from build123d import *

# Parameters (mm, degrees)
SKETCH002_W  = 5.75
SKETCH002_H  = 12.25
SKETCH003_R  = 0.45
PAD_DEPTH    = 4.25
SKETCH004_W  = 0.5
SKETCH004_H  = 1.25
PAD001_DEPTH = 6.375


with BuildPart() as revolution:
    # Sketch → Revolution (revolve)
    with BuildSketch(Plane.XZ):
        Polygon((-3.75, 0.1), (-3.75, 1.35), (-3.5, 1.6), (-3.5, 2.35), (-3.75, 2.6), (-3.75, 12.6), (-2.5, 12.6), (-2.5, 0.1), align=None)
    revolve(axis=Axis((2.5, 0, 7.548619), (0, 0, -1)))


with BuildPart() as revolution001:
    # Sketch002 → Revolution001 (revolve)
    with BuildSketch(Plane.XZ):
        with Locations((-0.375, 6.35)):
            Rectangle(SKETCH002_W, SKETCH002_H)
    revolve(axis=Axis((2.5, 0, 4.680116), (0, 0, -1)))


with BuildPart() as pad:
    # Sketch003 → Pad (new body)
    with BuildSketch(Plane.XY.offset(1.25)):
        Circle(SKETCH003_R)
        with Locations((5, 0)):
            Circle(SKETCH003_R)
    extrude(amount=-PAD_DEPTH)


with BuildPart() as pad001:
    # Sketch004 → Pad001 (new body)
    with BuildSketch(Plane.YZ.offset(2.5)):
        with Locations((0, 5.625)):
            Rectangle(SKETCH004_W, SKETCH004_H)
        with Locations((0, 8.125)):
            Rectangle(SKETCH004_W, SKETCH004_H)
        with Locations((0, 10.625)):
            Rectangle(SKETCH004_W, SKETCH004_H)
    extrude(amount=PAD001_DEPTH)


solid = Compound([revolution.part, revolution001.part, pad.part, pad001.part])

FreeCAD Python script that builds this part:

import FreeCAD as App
import Part
import Sketcher
Q = App.Units.Quantity


def add_polygon(sketch, points):
    """Adds a closed chain of lines whose ends are joined by coincident constraints."""
    first, n = sketch.GeometryCount, len(points)
    for a, b in zip(points, points[1:] + points[:1]):
        sketch.addGeometry(Part.LineSegment(App.Vector(*a, 0), App.Vector(*b, 0)), False)
    for i in range(n):
        sketch.addConstraint(Sketcher.Constraint("Coincident", first + i, 2, first + (i + 1) % n, 1))

doc = App.newDocument("Part")
params = doc.addObject("Spreadsheet::Sheet", "Params")
for row, (alias, value) in enumerate([
    ("sketch1_height", "10 mm"),
    ("sketch1_height2", "12.5 mm"),
    ("revolution_angle", "360 deg"),
    ("sketch2_width", "5.75 mm"),
    ("sketch2_height", "12.25 mm"),
    ("revolution2_angle", "360 deg"),
    ("sketch3_diameter", "0.9 mm"),
    ("pad1_length", "4.25 mm"),
    ("sketch4_width", "0.5 mm"),
    ("sketch4_height", "1.25 mm"),
    ("pad2_length", "6.375 mm"),
], start=1):
    params.set(f"A{row}", alias)
    params.set(f"B{row}", "=" + value)
    params.setAlias(f"B{row}", alias)

body = doc.addObject("PartDesign::Body", "Body")

# Sketch on XZ plane
sketch1 = body.newObject("Sketcher::SketchObject", "Sketch")
sketch1.AttachmentSupport = (doc.getObject("XZ_Plane"), [""])
sketch1.MapMode = "FlatFace"
add_polygon(sketch1, [(-3.75, 1.35), (-3.75, 0.1), (-2.5, 0.1), (-2.5, 12.6), (-3.75, 12.6), (-3.75, 2.6), (-3.5, 2.35), (-3.5, 1.6)])  # lines 0-7
sketch1.addGeometry(Part.LineSegment(App.Vector(2.5, 12.6, 0), App.Vector(2.5, 0.1, 0)), True)  # axis
sketch1.addConstraint([
    Sketcher.Constraint("Vertical", 0),
    Sketcher.Constraint("Horizontal", 1),
    Sketcher.Constraint("Vertical", 2),
    Sketcher.Constraint("Horizontal", 3),
    Sketcher.Constraint("Vertical", 4),
    Sketcher.Constraint("Vertical", 6),
    Sketcher.Constraint("Vertical", 8),
    Sketcher.Constraint("Symmetric", 2, 2, 8, 1, -2),
    Sketcher.Constraint("Perpendicular", 5, 7),
    Sketcher.Constraint("Horizontal", 1, 2, 8, 2),
    Sketcher.Constraint("Vertical", 0, 2, 3, 2),
    Sketcher.Constraint("Equal", 3, 0),
    Sketcher.Constraint("Equal", 5, 7),
    Sketcher.Constraint("DistanceY", 4, 2, 4, 1, Q("10 mm")),
    Sketcher.Constraint("DistanceY", 2, 1, 2, 2, Q("12.5 mm")),
    Sketcher.Constraint("DistanceX", 5, 2, 1, 2, Q("1 mm")),
    Sketcher.Constraint("DistanceY", 6, 2, 4, 2, Q("1 mm")),
    Sketcher.Constraint("DistanceX", 2, 2, 8, 1, Q("5 mm")),
    Sketcher.Constraint("DistanceY", -1, 1, 0, 2, Q("0.1 mm")),
])
sketch1.setExpression("Constraints[21]", "Params.sketch1_height")
sketch1.setExpression("Constraints[22]", "Params.sketch1_height2")
revolution = body.newObject("PartDesign::Revolution", "Revolution")
revolution.Profile = sketch1
revolution.ReferenceAxis = (sketch1, ["Axis0"])
revolution.setExpression("Angle", "Params.revolution_angle")
body2 = doc.addObject("PartDesign::Body", "Body001")

# Sketch on XZ plane
sketch2 = body2.newObject("Sketcher::SketchObject", "Sketch001")
sketch2.AttachmentSupport = (doc.getObject("XZ_Plane001"), [""])
sketch2.MapMode = "FlatFace"
add_polygon(sketch2, [(-3.25, 12.475), (-3.25, 0.225), (2.5, 0.225), (2.5, 12.475)])  # lines 0-3
sketch2.addGeometry(Part.LineSegment(App.Vector(2.5, 12.475, 0), App.Vector(2.5, 0.225, 0)), True)  # axis
sketch2.addConstraint([
    Sketcher.Constraint("Vertical", 0),
    Sketcher.Constraint("Horizontal", 1),
    Sketcher.Constraint("Vertical", 2),
    Sketcher.Constraint("Horizontal", 3),
    Sketcher.Constraint("Vertical", 4),
    Sketcher.Constraint("Coincident", 4, 1, 2, 2),
    Sketcher.Constraint("Horizontal", 0, 2, 4, 2),
    Sketcher.Constraint("DistanceX", 1, 1, 1, 2, Q("5.75 mm")),
    Sketcher.Constraint("DistanceY", 0, 2, 0, 1, Q("12.25 mm")),
    Sketcher.Constraint("DistanceX", -1, 1, 1, 2, Q("2.5 mm")),
    Sketcher.Constraint("DistanceY", -1, 1, 0, 2, Q("0.225 mm")),
])
sketch2.setExpression("Constraints[11]", "Params.sketch2_width")
sketch2.setExpression("Constraints[12]", "Params.sketch2_height")
revolution2 = body2.newObject("PartDesign::Revolution", "Revolution001")
revolution2.Profile = sketch2
revolution2.ReferenceAxis = (sketch2, ["Axis0"])
revolution2.setExpression("Angle", "Params.revolution2_angle")
body3 = doc.addObject("PartDesign::Body", "Body002")
body3.AllowCompound = True

# Sketch on XY plane
sketch3 = body3.newObject("Sketcher::SketchObject", "Sketch002")
sketch3.AttachmentSupport = (doc.getObject("XY_Plane002"), [""])
sketch3.MapMode = "FlatFace"
sketch3.AttachmentOffset = App.Placement(App.Vector(0, 0, 1.25), App.Rotation())
sketch3.addGeometry([
    Part.Circle(App.Vector(0, 0, 0), App.Vector(0, 0, 1), 0.45),
    Part.Circle(App.Vector(5, 0, 0), App.Vector(0, 0, 1), 0.45),
], False)
sketch3.addConstraint([
    Sketcher.Constraint("Coincident", 0, 3, -1, 1),
    Sketcher.Constraint("Equal", 0, 1),
    Sketcher.Constraint("PointOnObject", 1, 3, -1),
    Sketcher.Constraint("Diameter", 0, Q("0.9 mm")),
    Sketcher.Constraint("DistanceX", -1, 1, 1, 3, Q("5 mm")),
])
sketch3.setExpression("Constraints[3]", "Params.sketch3_diameter")
pad1 = body3.newObject("PartDesign::Pad", "Pad")
pad1.Profile = sketch3
pad1.setExpression("Length", "Params.pad1_length")
pad1.Reversed = True
body4 = doc.addObject("PartDesign::Body", "Body003")
body4.AllowCompound = True

# Sketch on YZ plane
sketch4 = body4.newObject("Sketcher::SketchObject", "Sketch003")
sketch4.AttachmentSupport = (doc.getObject("YZ_Plane003"), [""])
sketch4.MapMode = "FlatFace"
sketch4.AttachmentOffset = App.Placement(App.Vector(0, 0, 2.5), App.Rotation())
add_polygon(sketch4, [(-0.25, 6.25), (-0.25, 5), (0.25, 5), (0.25, 6.25)])  # lines 0-3
add_polygon(sketch4, [(-0.25, 8.75), (-0.25, 7.5), (0.25, 7.5), (0.25, 8.75)])  # lines 4-7
add_polygon(sketch4, [(-0.25, 11.25), (-0.25, 10), (0.25, 10), (0.25, 11.25)])  # lines 8-11
sketch4.addConstraint([
    Sketcher.Constraint("Vertical", 0),
    Sketcher.Constraint("Horizontal", 1),
    Sketcher.Constraint("Vertical", 2),
    Sketcher.Constraint("Horizontal", 3),
    Sketcher.Constraint("Vertical", 4),
    Sketcher.Constraint("Horizontal", 5),
    Sketcher.Constraint("Vertical", 6),
    Sketcher.Constraint("Horizontal", 7),
    Sketcher.Constraint("Vertical", 8),
    Sketcher.Constraint("Horizontal", 9),
    Sketcher.Constraint("Vertical", 10),
    Sketcher.Constraint("Horizontal", 11),
    Sketcher.Constraint("Vertical", 3, 2, 4, 2),
    Sketcher.Constraint("Vertical", 2, 2, 5, 2),
    Sketcher.Constraint("Vertical", 7, 2, 8, 2),
    Sketcher.Constraint("Vertical", 6, 2, 9, 2),
    Sketcher.Constraint("Equal", 2, 4),
    Sketcher.Constraint("Equal", 6, 8),
    Sketcher.Constraint("DistanceX", 1, 1, 1, 2, Q("0.5 mm")),
    Sketcher.Constraint("DistanceY", -1, 1, 0, 2, Q("5 mm")),
    Sketcher.Constraint("DistanceY", -1, 1, 8, 2, Q("10 mm")),
    Sketcher.Constraint("DistanceY", 0, 2, 0, 1, Q("1.25 mm")),
    Sketcher.Constraint("DistanceY", -1, 1, 4, 2, Q("7.5 mm")),
    Sketcher.Constraint("DistanceX", 0, 2, -1, 1, Q("0.25 mm")),
])
sketch4.setExpression("Constraints[30]", "Params.sketch4_width")
sketch4.setExpression("Constraints[33]", "Params.sketch4_height")
pad2 = body4.newObject("PartDesign::Pad", "Pad001")
pad2.Profile = sketch4
pad2.setExpression("Length", "Params.pad2_length")

doc.recompute()
